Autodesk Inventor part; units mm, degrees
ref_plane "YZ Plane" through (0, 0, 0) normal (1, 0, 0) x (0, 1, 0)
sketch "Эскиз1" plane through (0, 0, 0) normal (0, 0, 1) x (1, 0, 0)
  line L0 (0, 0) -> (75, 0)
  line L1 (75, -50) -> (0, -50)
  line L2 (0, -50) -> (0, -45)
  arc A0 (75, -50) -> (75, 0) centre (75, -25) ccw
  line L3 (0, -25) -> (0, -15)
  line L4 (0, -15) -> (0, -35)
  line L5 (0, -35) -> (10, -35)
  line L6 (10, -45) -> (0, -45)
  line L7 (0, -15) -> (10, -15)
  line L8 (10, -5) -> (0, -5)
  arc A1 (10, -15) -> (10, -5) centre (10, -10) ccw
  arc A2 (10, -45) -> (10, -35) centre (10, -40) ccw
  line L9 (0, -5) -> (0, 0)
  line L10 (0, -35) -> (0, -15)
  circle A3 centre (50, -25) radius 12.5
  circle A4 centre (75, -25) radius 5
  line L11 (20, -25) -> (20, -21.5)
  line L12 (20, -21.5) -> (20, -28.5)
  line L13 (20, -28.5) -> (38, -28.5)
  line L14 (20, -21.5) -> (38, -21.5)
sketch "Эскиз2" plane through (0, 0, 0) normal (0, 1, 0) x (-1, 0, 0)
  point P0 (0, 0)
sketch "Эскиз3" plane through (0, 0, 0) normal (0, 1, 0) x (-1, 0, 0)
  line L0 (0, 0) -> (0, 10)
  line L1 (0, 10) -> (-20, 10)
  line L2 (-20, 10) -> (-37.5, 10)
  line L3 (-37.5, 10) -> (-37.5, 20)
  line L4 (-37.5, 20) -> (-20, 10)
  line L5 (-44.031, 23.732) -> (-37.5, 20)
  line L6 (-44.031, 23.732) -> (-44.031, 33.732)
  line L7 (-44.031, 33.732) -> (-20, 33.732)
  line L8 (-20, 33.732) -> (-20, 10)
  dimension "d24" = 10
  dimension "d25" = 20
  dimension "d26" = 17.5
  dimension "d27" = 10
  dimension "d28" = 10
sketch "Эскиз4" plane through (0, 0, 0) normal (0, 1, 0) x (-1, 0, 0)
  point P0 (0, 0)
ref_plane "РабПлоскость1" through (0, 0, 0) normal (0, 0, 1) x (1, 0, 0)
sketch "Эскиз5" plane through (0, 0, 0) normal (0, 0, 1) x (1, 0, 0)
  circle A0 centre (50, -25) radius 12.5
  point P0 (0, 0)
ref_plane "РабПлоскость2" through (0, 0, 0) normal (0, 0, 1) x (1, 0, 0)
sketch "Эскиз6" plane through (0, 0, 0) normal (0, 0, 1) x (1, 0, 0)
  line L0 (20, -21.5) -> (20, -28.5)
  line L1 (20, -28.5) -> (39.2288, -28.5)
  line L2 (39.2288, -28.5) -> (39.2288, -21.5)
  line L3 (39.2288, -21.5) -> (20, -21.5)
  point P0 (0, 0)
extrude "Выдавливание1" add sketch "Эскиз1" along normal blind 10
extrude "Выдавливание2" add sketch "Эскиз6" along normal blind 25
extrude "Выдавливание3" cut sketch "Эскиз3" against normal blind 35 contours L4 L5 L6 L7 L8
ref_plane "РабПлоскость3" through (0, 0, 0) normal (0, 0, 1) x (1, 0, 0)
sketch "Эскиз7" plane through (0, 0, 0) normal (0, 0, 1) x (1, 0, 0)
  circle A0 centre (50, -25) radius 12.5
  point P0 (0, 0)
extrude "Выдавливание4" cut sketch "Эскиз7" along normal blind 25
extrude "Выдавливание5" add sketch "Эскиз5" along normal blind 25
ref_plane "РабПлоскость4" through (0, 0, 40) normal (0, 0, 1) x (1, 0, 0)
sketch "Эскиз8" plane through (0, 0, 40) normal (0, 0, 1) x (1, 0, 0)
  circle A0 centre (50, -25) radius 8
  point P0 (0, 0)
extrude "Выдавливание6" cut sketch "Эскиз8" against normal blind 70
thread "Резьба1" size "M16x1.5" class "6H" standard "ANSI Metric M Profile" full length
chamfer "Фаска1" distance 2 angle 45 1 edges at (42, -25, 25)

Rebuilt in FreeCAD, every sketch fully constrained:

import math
import FreeCAD as App
import Part
import Sketcher

V = App.Vector


def edges_at(feature, points):
    """Names of the edges that pass closest to the given points."""
    edges = feature.Shape.Edges
    near = lambda p: min(range(len(edges)), key=lambda i: edges[i].distToShape(Part.Vertex(*p))[0])
    return sorted({f"Edge{near(p) + 1}" for p in points})

doc = App.newDocument("Part")
body = doc.addObject("PartDesign::Body", "Body")

# Sketch on XY plane
sketch1 = body.newObject("Sketcher::SketchObject", "Sketch")
sketch1.AttachmentSupport = (doc.getObject("XY_Plane"), [""])
sketch1.MapMode = "FlatFace"
sketch1.addGeometry(Part.LineSegment(V(75, 0, 0), V(0, 0, 0)), False)
sketch1.addGeometry(Part.LineSegment(V(0, 0, 0), V(0, -5, 0)), False)
sketch1.addGeometry(Part.LineSegment(V(0, -5, 0), V(10, -5, 0)), False)
sketch1.addGeometry(Part.ArcOfCircle(Part.Circle(V(10, -10, 0), V(0, 0, 1), 5), math.radians(-90), math.radians(90)), False)
sketch1.addGeometry(Part.LineSegment(V(10, -15, 0), V(0, -15, 0)), False)
sketch1.addGeometry(Part.LineSegment(V(0, -15, 0), V(0, -35, 0)), False)
sketch1.addGeometry(Part.LineSegment(V(0, -35, 0), V(10, -35, 0)), False)
sketch1.addGeometry(Part.ArcOfCircle(Part.Circle(V(10, -40, 0), V(0, 0, 1), 5), math.radians(-90), math.radians(90)), False)
sketch1.addGeometry(Part.LineSegment(V(10, -45, 0), V(0, -45, 0)), False)
sketch1.addGeometry(Part.LineSegment(V(0, -45, 0), V(0, -50, 0)), False)
sketch1.addGeometry(Part.LineSegment(V(0, -50, 0), V(75, -50, 0)), False)
sketch1.addGeometry(Part.ArcOfCircle(Part.Circle(V(75, -25, 0), V(0, 0, 1), 25), math.radians(-90), math.radians(90)), False)
sketch1.addGeometry(Part.ArcOfCircle(Part.Circle(V(50, -25, 0), V(0, 0, 1), 12.5), math.radians(-163.739795), math.radians(163.739795)), False)
sketch1.addGeometry(Part.LineSegment(V(38, -28.5, 0), V(20, -28.5, 0)), False)
sketch1.addGeometry(Part.LineSegment(V(20, -28.5, 0), V(20, -21.5, 0)), False)
sketch1.addGeometry(Part.LineSegment(V(20, -21.5, 0), V(38, -21.5, 0)), False)
sketch1.addGeometry(Part.Circle(V(75, -25, 0), V(0, 0, 1), 5), False)
sketch1.addConstraint(Sketcher.Constraint("Coincident", 0, 2, 1, 1))
sketch1.addConstraint(Sketcher.Constraint("Coincident", 1, 2, 2, 1))
sketch1.addConstraint(Sketcher.Constraint("Tangent", 2, 2, 3, 2))
sketch1.addConstraint(Sketcher.Constraint("Tangent", 3, 1, 4, 1))
sketch1.addConstraint(Sketcher.Constraint("Coincident", 4, 2, 5, 1))
sketch1.addConstraint(Sketcher.Constraint("Coincident", 5, 2, 6, 1))
sketch1.addConstraint(Sketcher.Constraint("Tangent", 6, 2, 7, 2))
sketch1.addConstraint(Sketcher.Constraint("Tangent", 7, 1, 8, 1))
sketch1.addConstraint(Sketcher.Constraint("Coincident", 8, 2, 9, 1))
sketch1.addConstraint(Sketcher.Constraint("Coincident", 9, 2, 10, 1))
sketch1.addConstraint(Sketcher.Constraint("Tangent", 10, 2, 11, 1))
sketch1.addConstraint(Sketcher.Constraint("Tangent", 11, 2, 0, 1))
sketch1.addConstraint(Sketcher.Constraint("Coincident", 12, 1, 13, 1))
sketch1.addConstraint(Sketcher.Constraint("Coincident", 13, 2, 14, 1))
sketch1.addConstraint(Sketcher.Constraint("Coincident", 14, 2, 15, 1))
sketch1.addConstraint(Sketcher.Constraint("Coincident", 15, 2, 12, 2))
sketch1.addConstraint(Sketcher.Constraint("Horizontal", 0))
sketch1.addConstraint(Sketcher.Constraint("Vertical", 1))
sketch1.addConstraint(Sketcher.Constraint("Horizontal", 2))
sketch1.addConstraint(Sketcher.Constraint("Horizontal", 4))
sketch1.addConstraint(Sketcher.Constraint("Vertical", 5))
sketch1.addConstraint(Sketcher.Constraint("Horizontal", 6))
sketch1.addConstraint(Sketcher.Constraint("Horizontal", 8))
sketch1.addConstraint(Sketcher.Constraint("Vertical", 9))
sketch1.addConstraint(Sketcher.Constraint("Horizontal", 10))
sketch1.addConstraint(Sketcher.Constraint("Horizontal", 13))
sketch1.addConstraint(Sketcher.Constraint("Vertical", 14))
sketch1.addConstraint(Sketcher.Constraint("Horizontal", 15))
sketch1.addConstraint(Sketcher.Constraint("Coincident", 0, 2, -1, 1))
sketch1.addConstraint(Sketcher.Constraint("Coincident", 16, 3, 11, 3))
sketch1.addConstraint(Sketcher.Constraint("Equal", 3, 7))
sketch1.addConstraint(Sketcher.Constraint("Equal", 7, 16))
sketch1.addConstraint(Sketcher.Constraint("PointOnObject", 4, 2, -2))
sketch1.addConstraint(Sketcher.Constraint("PointOnObject", 8, 2, -2))
sketch1.addConstraint(Sketcher.Constraint("Horizontal", 11, 3, 12, 3))
sketch1.addConstraint(Sketcher.Constraint("Vertical", 3, 3, 7, 3))
sketch1.addConstraint(Sketcher.Constraint("Vertical", 12, 1, 15, 2))
sketch1.addConstraint(Sketcher.Constraint("Equal", 1, 9))
sketch1.addConstraint(Sketcher.Constraint("Diameter", 16, 10.0))
sketch1.addConstraint(Sketcher.Constraint("Radius", 11, 25.0))
sketch1.addConstraint(Sketcher.Constraint("Radius", 12, 12.5))
sketch1.addConstraint(Sketcher.Constraint("DistanceX", 0, 2, 0, 1, 75.0))
sketch1.addConstraint(Sketcher.Constraint("DistanceX", 2, 1, 2, 2, 10.0))
sketch1.addConstraint(Sketcher.Constraint("DistanceX", 13, 2, 13, 1, 18.0))
sketch1.addConstraint(Sketcher.Constraint("DistanceY", 1, 2, 1, 1, 5.0))
sketch1.addConstraint(Sketcher.Constraint("DistanceY", 14, 1, 14, 2, 7.0))
sketch1.addConstraint(Sketcher.Constraint("DistanceX", -1, 1, 12, 3, 50.0))
pad1 = body.newObject("PartDesign::Pad", "Pad")
pad1.Profile = sketch1
pad1.Length = 10

# Sketch on XY plane
sketch2 = body.newObject("Sketcher::SketchObject", "Sketch001")
sketch2.AttachmentSupport = (doc.getObject("XY_Plane"), [""])
sketch2.MapMode = "FlatFace"
sketch2.addGeometry(Part.LineSegment(V(39.2288, -21.5, 0), V(20, -21.5, 0)), False)
sketch2.addGeometry(Part.LineSegment(V(20, -21.5, 0), V(20, -28.5, 0)), False)
sketch2.addGeometry(Part.LineSegment(V(20, -28.5, 0), V(39.2288, -28.5, 0)), False)
sketch2.addGeometry(Part.LineSegment(V(39.2288, -28.5, 0), V(39.2288, -21.5, 0)), False)
sketch2.addConstraint(Sketcher.Constraint("Coincident", 0, 2, 1, 1))
sketch2.addConstraint(Sketcher.Constraint("Coincident", 1, 2, 2, 1))
sketch2.addConstraint(Sketcher.Constraint("Coincident", 2, 2, 3, 1))
sketch2.addConstraint(Sketcher.Constraint("Coincident", 3, 2, 0, 1))
sketch2.addConstraint(Sketcher.Constraint("Horizontal", 0))
sketch2.addConstraint(Sketcher.Constraint("Vertical", 1))
sketch2.addConstraint(Sketcher.Constraint("Horizontal", 2))
sketch2.addConstraint(Sketcher.Constraint("Vertical", 3))
sketch2.addConstraint(Sketcher.Constraint("DistanceY", 1, 2, 1, 1, 7.0))
sketch2.addConstraint(Sketcher.Constraint("DistanceX", -1, 1, 0, 2, 20.0))
sketch2.addConstraint(Sketcher.Constraint("DistanceY", 0, 2, -1, 1, 21.5))
sketch2.addConstraint(Sketcher.Constraint("DistanceX", 0, 2, 0, 1, 19.2288))
pad2 = body.newObject("PartDesign::Pad", "Pad001")
pad2.Profile = sketch2
pad2.Length = 25

# Sketch on XZ plane
sketch3 = body.newObject("Sketcher::SketchObject", "Sketch002")
sketch3.AttachmentSupport = (doc.getObject("XZ_Plane"), [""])
sketch3.MapMode = "FlatFace"
sketch3.addGeometry(Part.LineSegment(V(44.031, 23.732, 0), V(20, 10, 0)), False)
sketch3.addGeometry(Part.LineSegment(V(20, 10, 0), V(20, 33.732, 0)), False)
sketch3.addGeometry(Part.LineSegment(V(20, 33.732, 0), V(44.031, 33.732, 0)), False)
sketch3.addGeometry(Part.LineSegment(V(44.031, 33.732, 0), V(44.031, 23.732, 0)), False)
sketch3.addConstraint(Sketcher.Constraint("Coincident", 0, 2, 1, 1))
sketch3.addConstraint(Sketcher.Constraint("Coincident", 1, 2, 2, 1))
sketch3.addConstraint(Sketcher.Constraint("Coincident", 2, 2, 3, 1))
sketch3.addConstraint(Sketcher.Constraint("Coincident", 3, 2, 0, 1))
sketch3.addConstraint(Sketcher.Constraint("Vertical", 1))
sketch3.addConstraint(Sketcher.Constraint("Horizontal", 2))
sketch3.addConstraint(Sketcher.Constraint("Vertical", 3))
sketch3.addConstraint(Sketcher.Constraint("DistanceY", 3, 2, 3, 1, 10.0))
sketch3.addConstraint(Sketcher.Constraint("DistanceX", -1, 1, 0, 2, 20.0))
sketch3.addConstraint(Sketcher.Constraint("DistanceY", -1, 1, 0, 2, 10.0))
sketch3.addConstraint(Sketcher.Constraint("DistanceX", 2, 1, 2, 2, 24.031))
sketch3.addConstraint(Sketcher.Constraint("DistanceY", 1, 1, 1, 2, 23.732))
pocket1 = body.newObject("PartDesign::Pocket", "Pocket")
pocket1.Profile = sketch3
pocket1.Length = 35
pocket1.Reversed = True

# Sketch on XY plane
sketch4 = body.newObject("Sketcher::SketchObject", "Sketch003")
sketch4.AttachmentSupport = (doc.getObject("XY_Plane"), [""])
sketch4.MapMode = "FlatFace"
sketch4.addGeometry(Part.Circle(V(50, -25, 0), V(0, 0, 1), 12.5), False)
sketch4.addConstraint(Sketcher.Constraint("Diameter", 0, 25.0))
sketch4.addConstraint(Sketcher.Constraint("DistanceX", -1, 1, 0, 3, 50.0))
sketch4.addConstraint(Sketcher.Constraint("DistanceY", 0, 3, -1, 1, 25.0))
pocket2 = body.newObject("PartDesign::Pocket", "Pocket001")
pocket2.Profile = sketch4
pocket2.Length = 25
pocket2.Reversed = True

# Sketch on XY plane
sketch5 = body.newObject("Sketcher::SketchObject", "Sketch004")
sketch5.AttachmentSupport = (doc.getObject("XY_Plane"), [""])
sketch5.MapMode = "FlatFace"
sketch5.addGeometry(Part.Circle(V(50, -25, 0), V(0, 0, 1), 12.5), False)
sketch5.addConstraint(Sketcher.Constraint("Diameter", 0, 25.0))
sketch5.addConstraint(Sketcher.Constraint("DistanceX", -1, 1, 0, 3, 50.0))
sketch5.addConstraint(Sketcher.Constraint("DistanceY", 0, 3, -1, 1, 25.0))
pad3 = body.newObject("PartDesign::Pad", "Pad002")
pad3.Profile = sketch5
pad3.Length = 25

# Sketch on XY plane
sketch6 = body.newObject("Sketcher::SketchObject", "Sketch005")
sketch6.AttachmentSupport = (doc.getObject("XY_Plane"), [""])
sketch6.MapMode = "FlatFace"
sketch6.AttachmentOffset = App.Placement(V(0, 0, 40), App.Rotation())
sketch6.addGeometry(Part.Circle(V(50, -25, 0), V(0, 0, 1), 8), False)
sketch6.addConstraint(Sketcher.Constraint("Diameter", 0, 16.0))
sketch6.addConstraint(Sketcher.Constraint("DistanceX", -1, 1, 0, 3, 50.0))
sketch6.addConstraint(Sketcher.Constraint("DistanceY", 0, 3, -1, 1, 25.0))
pocket3 = body.newObject("PartDesign::Pocket", "Pocket002")
pocket3.Profile = sketch6
pocket3.Length = 70
doc.recompute()

chamfer = body.newObject("PartDesign::Chamfer", "Chamfer")
chamfer.Base = (pocket3, edges_at(pocket3, [(42, -25, 25)]))
chamfer.Size = 2

doc.recompute()
